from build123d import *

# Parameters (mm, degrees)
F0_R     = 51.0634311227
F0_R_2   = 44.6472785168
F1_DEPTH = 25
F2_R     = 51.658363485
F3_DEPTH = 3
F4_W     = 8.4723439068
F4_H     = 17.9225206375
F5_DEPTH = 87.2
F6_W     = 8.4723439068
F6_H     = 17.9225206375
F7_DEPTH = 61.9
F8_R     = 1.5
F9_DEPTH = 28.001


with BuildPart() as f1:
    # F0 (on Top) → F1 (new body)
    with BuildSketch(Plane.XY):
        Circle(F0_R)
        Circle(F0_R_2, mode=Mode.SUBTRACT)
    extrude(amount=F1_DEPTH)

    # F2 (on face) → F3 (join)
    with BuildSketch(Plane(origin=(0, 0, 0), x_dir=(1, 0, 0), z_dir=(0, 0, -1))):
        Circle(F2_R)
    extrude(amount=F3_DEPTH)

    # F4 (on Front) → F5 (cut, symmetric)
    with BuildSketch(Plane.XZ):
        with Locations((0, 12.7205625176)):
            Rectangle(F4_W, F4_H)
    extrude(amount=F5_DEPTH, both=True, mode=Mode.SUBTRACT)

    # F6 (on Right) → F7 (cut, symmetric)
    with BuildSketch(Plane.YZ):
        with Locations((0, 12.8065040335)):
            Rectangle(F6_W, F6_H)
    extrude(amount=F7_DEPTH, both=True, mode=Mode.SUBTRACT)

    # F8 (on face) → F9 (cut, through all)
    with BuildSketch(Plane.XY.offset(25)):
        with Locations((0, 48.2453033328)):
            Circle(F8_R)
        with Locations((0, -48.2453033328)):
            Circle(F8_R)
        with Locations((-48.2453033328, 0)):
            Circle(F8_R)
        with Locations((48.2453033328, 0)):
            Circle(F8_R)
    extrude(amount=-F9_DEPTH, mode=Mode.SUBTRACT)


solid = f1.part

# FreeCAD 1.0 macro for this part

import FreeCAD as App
import Part
import Sketcher

V = App.Vector

doc = App.newDocument("Part")
body = doc.addObject("PartDesign::Body", "Body")

# Sketch on XY plane
sketch1 = body.newObject("Sketcher::SketchObject", "Sketch")
sketch1.AttachmentSupport = (doc.getObject("XY_Plane"), [""])
sketch1.MapMode = "FlatFace"
sketch1.addGeometry(Part.Circle(V(0, 0, 0), V(0, 0, 1), 51), False)
sketch1.addGeometry(Part.Circle(V(0, 0, 0), V(0, 0, 1), 45), False)
sketch1.addConstraint(Sketcher.Constraint("Coincident", 0, 3, -1, 1))
sketch1.addConstraint(Sketcher.Constraint("Coincident", 1, 3, -1, 1))
sketch1.addConstraint(Sketcher.Constraint("Diameter", 0, 102.126862))
sketch1.addConstraint(Sketcher.Constraint("Diameter", 1, 89.294557))
pad1 = body.newObject("PartDesign::Pad", "Pad")
pad1.Profile = sketch1
pad1.Length = 25

# Sketch on XY plane
sketch2 = body.newObject("Sketcher::SketchObject", "Sketch001")
sketch2.AttachmentSupport = (doc.getObject("XY_Plane"), [""])
sketch2.MapMode = "FlatFace"
sketch2.addGeometry(Part.Circle(V(0, 0, 0), V(0, 0, 1), 52), False)
sketch2.addConstraint(Sketcher.Constraint("Coincident", 0, 3, -1, 1))
sketch2.addConstraint(Sketcher.Constraint("Diameter", 0, 103.316727))
pad2 = body.newObject("PartDesign::Pad", "Pad001")
pad2.Profile = sketch2
pad2.Length = 3
pad2.Reversed = True

# Sketch on XZ plane
sketch3 = body.newObject("Sketcher::SketchObject", "Sketch002")
sketch3.AttachmentSupport = (doc.getObject("XZ_Plane"), [""])
sketch3.MapMode = "FlatFace"
sketch3.addGeometry(Part.LineSegment(V(-4, 22, 0), V(-4, 4, 0)), False)
sketch3.addGeometry(Part.LineSegment(V(-4, 4, 0), V(4, 4, 0)), False)
sketch3.addGeometry(Part.LineSegment(V(4, 4, 0), V(4, 22, 0)), False)
sketch3.addGeometry(Part.LineSegment(V(4, 22, 0), V(-4, 22, 0)), False)
sketch3.addConstraint(Sketcher.Constraint("Coincident", 0, 2, 1, 1))
sketch3.addConstraint(Sketcher.Constraint("Coincident", 1, 2, 2, 1))
sketch3.addConstraint(Sketcher.Constraint("Coincident", 2, 2, 3, 1))
sketch3.addConstraint(Sketcher.Constraint("Coincident", 3, 2, 0, 1))
sketch3.addConstraint(Sketcher.Constraint("Vertical", 0))
sketch3.addConstraint(Sketcher.Constraint("Horizontal", 1))
sketch3.addConstraint(Sketcher.Constraint("Vertical", 2))
sketch3.addConstraint(Sketcher.Constraint("Horizontal", 3))
sketch3.addConstraint(Sketcher.Constraint("DistanceY", 0, 2, 0, 1, 17.922521))
sketch3.addConstraint(Sketcher.Constraint("DistanceX", 1, 1, 1, 2, 8.472344))
sketch3.addConstraint(Sketcher.Constraint("DistanceX", 0, 2, -1, 1, 4.236172))
sketch3.addConstraint(Sketcher.Constraint("DistanceY", -1, 1, 0, 2, 3.759302))
pocket1 = body.newObject("PartDesign::Pocket", "Pocket")
pocket1.Profile = sketch3
pocket1.Length = 174.4
pocket1.Midplane = True

# Sketch on YZ plane
sketch4 = body.newObject("Sketcher::SketchObject", "Sketch003")
sketch4.AttachmentSupport = (doc.getObject("YZ_Plane"), [""])
sketch4.MapMode = "FlatFace"
sketch4.addGeometry(Part.LineSegment(V(-4, 22, 0), V(-4, 4, 0)), False)
sketch4.addGeometry(Part.LineSegment(V(-4, 4, 0), V(4, 4, 0)), False)
sketch4.addGeometry(Part.LineSegment(V(4, 4, 0), V(4, 22, 0)), False)
sketch4.addGeometry(Part.LineSegment(V(4, 22, 0), V(-4, 22, 0)), False)
sketch4.addConstraint(Sketcher.Constraint("Coincident", 0, 2, 1, 1))
sketch4.addConstraint(Sketcher.Constraint("Coincident", 1, 2, 2, 1))
sketch4.addConstraint(Sketcher.Constraint("Coincident", 2, 2, 3, 1))
sketch4.addConstraint(Sketcher.Constraint("Coincident", 3, 2, 0, 1))
sketch4.addConstraint(Sketcher.Constraint("Vertical", 0))
sketch4.addConstraint(Sketcher.Constraint("Horizontal", 1))
sketch4.addConstraint(Sketcher.Constraint("Vertical", 2))
sketch4.addConstraint(Sketcher.Constraint("Horizontal", 3))
sketch4.addConstraint(Sketcher.Constraint("DistanceY", 0, 2, 0, 1, 17.922521))
sketch4.addConstraint(Sketcher.Constraint("DistanceX", 1, 1, 1, 2, 8.472344))
sketch4.addConstraint(Sketcher.Constraint("DistanceX", 0, 2, -1, 1, 4.236172))
sketch4.addConstraint(Sketcher.Constraint("DistanceY", -1, 1, 0, 2, 3.845244))
pocket2 = body.newObject("PartDesign::Pocket", "Pocket001")
pocket2.Profile = sketch4
pocket2.Length = 123.8
pocket2.Midplane = True

# Sketch on XY plane
sketch5 = body.newObject("Sketcher::SketchObject", "Sketch004")
sketch5.AttachmentSupport = (doc.getObject("XY_Plane"), [""])
sketch5.MapMode = "FlatFace"
sketch5.AttachmentOffset = App.Placement(V(0, 0, 25), App.Rotation())
sketch5.addGeometry(Part.Circle(V(0, 48.2, 0), V(0, 0, 1), 1.5), False)
sketch5.addGeometry(Part.Circle(V(0, -48.2, 0), V(0, 0, 1), 1.5), False)
sketch5.addGeometry(Part.Circle(V(-48.2, 0, 0), V(0, 0, 1), 1.5), False)
sketch5.addGeometry(Part.Circle(V(48.2, 0, 0), V(0, 0, 1), 1.5), False)
sketch5.addConstraint(Sketcher.Constraint("Equal", 0, 1))
sketch5.addConstraint(Sketcher.Constraint("Equal", 1, 2))
sketch5.addConstraint(Sketcher.Constraint("Equal", 2, 3))
sketch5.addConstraint(Sketcher.Constraint("Symmetric", 0, 3, 1, 3, -1, 1))
sketch5.addConstraint(Sketcher.Constraint("Symmetric", 2, 3, 3, 3, -1, 1))
sketch5.addConstraint(Sketcher.Constraint("PointOnObject", 0, 3, -2))
sketch5.addConstraint(Sketcher.Constraint("PointOnObject", 2, 3, -1))
sketch5.addConstraint(Sketcher.Constraint("Diameter", 0, 3.0))
sketch5.addConstraint(Sketcher.Constraint("DistanceY", -1, 1, 0, 3, 48.245303))
sketch5.addConstraint(Sketcher.Constraint("DistanceX", 2, 3, -1, 1, 48.245303))
pocket3 = body.newObject("PartDesign::Pocket", "Pocket002")
pocket3.Profile = sketch5
pocket3.Type = "ThroughAll"

doc.recompute()
